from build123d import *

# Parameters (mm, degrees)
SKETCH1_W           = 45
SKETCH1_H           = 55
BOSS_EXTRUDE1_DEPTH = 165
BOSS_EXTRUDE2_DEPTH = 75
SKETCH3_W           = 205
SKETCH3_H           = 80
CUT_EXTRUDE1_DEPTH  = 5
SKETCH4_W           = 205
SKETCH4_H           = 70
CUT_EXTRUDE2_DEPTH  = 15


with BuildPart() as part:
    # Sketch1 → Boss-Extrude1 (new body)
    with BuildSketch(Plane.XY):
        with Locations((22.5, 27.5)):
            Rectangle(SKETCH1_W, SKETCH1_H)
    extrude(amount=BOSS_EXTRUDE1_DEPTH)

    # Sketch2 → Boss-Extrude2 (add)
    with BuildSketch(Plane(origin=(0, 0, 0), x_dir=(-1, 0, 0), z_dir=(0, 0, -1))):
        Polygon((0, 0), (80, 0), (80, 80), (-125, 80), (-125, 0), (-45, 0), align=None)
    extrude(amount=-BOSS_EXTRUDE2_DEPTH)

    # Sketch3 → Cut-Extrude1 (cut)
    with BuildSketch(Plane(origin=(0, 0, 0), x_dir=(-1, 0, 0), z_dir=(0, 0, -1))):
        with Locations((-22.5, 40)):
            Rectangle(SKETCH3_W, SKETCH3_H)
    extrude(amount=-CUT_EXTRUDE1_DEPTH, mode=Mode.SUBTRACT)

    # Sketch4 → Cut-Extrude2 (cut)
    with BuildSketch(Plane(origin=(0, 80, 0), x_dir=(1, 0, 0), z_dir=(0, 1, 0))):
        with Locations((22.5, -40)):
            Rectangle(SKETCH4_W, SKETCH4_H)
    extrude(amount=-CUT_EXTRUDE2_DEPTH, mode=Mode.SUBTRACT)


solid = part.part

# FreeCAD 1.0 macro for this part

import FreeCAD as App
import Part
import Sketcher
from FreeCAD import Vector


def add_polygon(sketch, points):
    """Adds a closed chain of lines whose ends are joined by coincident constraints."""
    first, n = sketch.GeometryCount, len(points)
    for a, b in zip(points, points[1:] + points[:1]):
        sketch.addGeometry(Part.LineSegment(App.Vector(*a, 0), App.Vector(*b, 0)), False)
    for i in range(n):
        sketch.addConstraint(Sketcher.Constraint("Coincident", first + i, 2, first + (i + 1) % n, 1))

doc = App.newDocument("Part")
body = doc.addObject("PartDesign::Body", "Body")

sketch1 = doc.addObject("Sketcher::SketchObject", "Sketch")
body.addObject(sketch1)
sketch1.AttachmentSupport = (doc.XY_Plane, [""])
sketch1.MapMode = "FlatFace"
add_polygon(sketch1, [(0, 55), (0, 0), (45, 0), (45, 55)])
sketch1.addConstraint(Sketcher.Constraint("Vertical", 0))
sketch1.addConstraint(Sketcher.Constraint("Horizontal", 1))
sketch1.addConstraint(Sketcher.Constraint("Vertical", 2))
sketch1.addConstraint(Sketcher.Constraint("Horizontal", 3))
sketch1.addConstraint(Sketcher.Constraint("Coincident", 0, 2, -1, 1))
sketch1.addConstraint(Sketcher.Constraint("DistanceX", 1, 1, 1, 2, 45.0))
sketch1.addConstraint(Sketcher.Constraint("DistanceY", 0, 2, 0, 1, 55.0))
pad1 = doc.addObject("PartDesign::Pad", "Pad")
body.addObject(pad1)
pad1.Profile = sketch1
pad1.Length = 165

sketch2 = doc.addObject("Sketcher::SketchObject", "Sketch001")
body.addObject(sketch2)
sketch2.AttachmentSupport = (doc.XY_Plane, [""])
sketch2.MapMode = "FlatFace"
add_polygon(sketch2, [(-80, 0), (-80, 80), (125, 80), (125, 0)])
sketch2.addConstraint(Sketcher.Constraint("Vertical", 0))
sketch2.addConstraint(Sketcher.Constraint("Horizontal", 1))
sketch2.addConstraint(Sketcher.Constraint("Vertical", 2))
sketch2.addConstraint(Sketcher.Constraint("Horizontal", 3))
sketch2.addConstraint(Sketcher.Constraint("PointOnObject", 2, 2, -1))
sketch2.addConstraint(Sketcher.Constraint("DistanceX", 1, 1, 1, 2, 205.0))
sketch2.addConstraint(Sketcher.Constraint("DistanceY", 0, 1, 0, 2, 80.0))
sketch2.addConstraint(Sketcher.Constraint("DistanceX", 0, 2, -1, 1, 80.0))
pad2 = doc.addObject("PartDesign::Pad", "Pad001")
body.addObject(pad2)
pad2.Profile = sketch2
pad2.Length = 75

sketch3 = doc.addObject("Sketcher::SketchObject", "Sketch002")
body.addObject(sketch3)
sketch3.AttachmentSupport = (doc.XY_Plane, [""])
sketch3.MapMode = "FlatFace"
add_polygon(sketch3, [(125, 80), (125, 0), (-80, 0), (-80, 80)])
sketch3.addConstraint(Sketcher.Constraint("Vertical", 0))
sketch3.addConstraint(Sketcher.Constraint("Horizontal", 1))
sketch3.addConstraint(Sketcher.Constraint("Vertical", 2))
sketch3.addConstraint(Sketcher.Constraint("Horizontal", 3))
sketch3.addConstraint(Sketcher.Constraint("PointOnObject", 0, 2, -1))
sketch3.addConstraint(Sketcher.Constraint("DistanceX", 1, 2, 1, 1, 205.0))
sketch3.addConstraint(Sketcher.Constraint("DistanceY", 0, 2, 0, 1, 80.0))
sketch3.addConstraint(Sketcher.Constraint("DistanceX", -1, 1, 0, 2, 125.0))
pocket1 = doc.addObject("PartDesign::Pocket", "Pocket")
body.addObject(pocket1)
pocket1.Profile = sketch3
pocket1.Length = 5
pocket1.Reversed = True

sketch4 = doc.addObject("Sketcher::SketchObject", "Sketch003")
body.addObject(sketch4)
sketch4.AttachmentSupport = (doc.XZ_Plane, [""])
sketch4.MapMode = "FlatFace"
sketch4.AttachmentOffset = App.Placement(Vector(0, 0, -80), App.Rotation())
add_polygon(sketch4, [(-80, 5), (-80, 75), (125, 75), (125, 5)])
sketch4.addConstraint(Sketcher.Constraint("Vertical", 0))
sketch4.addConstraint(Sketcher.Constraint("Horizontal", 1))
sketch4.addConstraint(Sketcher.Constraint("Vertical", 2))
sketch4.addConstraint(Sketcher.Constraint("Horizontal", 3))
sketch4.addConstraint(Sketcher.Constraint("DistanceX", 1, 1, 1, 2, 205.0))
sketch4.addConstraint(Sketcher.Constraint("DistanceY", 0, 1, 0, 2, 70.0))
sketch4.addConstraint(Sketcher.Constraint("DistanceX", 0, 2, -1, 1, 80.0))
sketch4.addConstraint(Sketcher.Constraint("DistanceY", -1, 1, 0, 2, 75.0))
pocket2 = doc.addObject("PartDesign::Pocket", "Pocket001")
body.addObject(pocket2)
pocket2.Profile = sketch4
pocket2.Length = 15
pocket2.Reversed = True

doc.recompute()
